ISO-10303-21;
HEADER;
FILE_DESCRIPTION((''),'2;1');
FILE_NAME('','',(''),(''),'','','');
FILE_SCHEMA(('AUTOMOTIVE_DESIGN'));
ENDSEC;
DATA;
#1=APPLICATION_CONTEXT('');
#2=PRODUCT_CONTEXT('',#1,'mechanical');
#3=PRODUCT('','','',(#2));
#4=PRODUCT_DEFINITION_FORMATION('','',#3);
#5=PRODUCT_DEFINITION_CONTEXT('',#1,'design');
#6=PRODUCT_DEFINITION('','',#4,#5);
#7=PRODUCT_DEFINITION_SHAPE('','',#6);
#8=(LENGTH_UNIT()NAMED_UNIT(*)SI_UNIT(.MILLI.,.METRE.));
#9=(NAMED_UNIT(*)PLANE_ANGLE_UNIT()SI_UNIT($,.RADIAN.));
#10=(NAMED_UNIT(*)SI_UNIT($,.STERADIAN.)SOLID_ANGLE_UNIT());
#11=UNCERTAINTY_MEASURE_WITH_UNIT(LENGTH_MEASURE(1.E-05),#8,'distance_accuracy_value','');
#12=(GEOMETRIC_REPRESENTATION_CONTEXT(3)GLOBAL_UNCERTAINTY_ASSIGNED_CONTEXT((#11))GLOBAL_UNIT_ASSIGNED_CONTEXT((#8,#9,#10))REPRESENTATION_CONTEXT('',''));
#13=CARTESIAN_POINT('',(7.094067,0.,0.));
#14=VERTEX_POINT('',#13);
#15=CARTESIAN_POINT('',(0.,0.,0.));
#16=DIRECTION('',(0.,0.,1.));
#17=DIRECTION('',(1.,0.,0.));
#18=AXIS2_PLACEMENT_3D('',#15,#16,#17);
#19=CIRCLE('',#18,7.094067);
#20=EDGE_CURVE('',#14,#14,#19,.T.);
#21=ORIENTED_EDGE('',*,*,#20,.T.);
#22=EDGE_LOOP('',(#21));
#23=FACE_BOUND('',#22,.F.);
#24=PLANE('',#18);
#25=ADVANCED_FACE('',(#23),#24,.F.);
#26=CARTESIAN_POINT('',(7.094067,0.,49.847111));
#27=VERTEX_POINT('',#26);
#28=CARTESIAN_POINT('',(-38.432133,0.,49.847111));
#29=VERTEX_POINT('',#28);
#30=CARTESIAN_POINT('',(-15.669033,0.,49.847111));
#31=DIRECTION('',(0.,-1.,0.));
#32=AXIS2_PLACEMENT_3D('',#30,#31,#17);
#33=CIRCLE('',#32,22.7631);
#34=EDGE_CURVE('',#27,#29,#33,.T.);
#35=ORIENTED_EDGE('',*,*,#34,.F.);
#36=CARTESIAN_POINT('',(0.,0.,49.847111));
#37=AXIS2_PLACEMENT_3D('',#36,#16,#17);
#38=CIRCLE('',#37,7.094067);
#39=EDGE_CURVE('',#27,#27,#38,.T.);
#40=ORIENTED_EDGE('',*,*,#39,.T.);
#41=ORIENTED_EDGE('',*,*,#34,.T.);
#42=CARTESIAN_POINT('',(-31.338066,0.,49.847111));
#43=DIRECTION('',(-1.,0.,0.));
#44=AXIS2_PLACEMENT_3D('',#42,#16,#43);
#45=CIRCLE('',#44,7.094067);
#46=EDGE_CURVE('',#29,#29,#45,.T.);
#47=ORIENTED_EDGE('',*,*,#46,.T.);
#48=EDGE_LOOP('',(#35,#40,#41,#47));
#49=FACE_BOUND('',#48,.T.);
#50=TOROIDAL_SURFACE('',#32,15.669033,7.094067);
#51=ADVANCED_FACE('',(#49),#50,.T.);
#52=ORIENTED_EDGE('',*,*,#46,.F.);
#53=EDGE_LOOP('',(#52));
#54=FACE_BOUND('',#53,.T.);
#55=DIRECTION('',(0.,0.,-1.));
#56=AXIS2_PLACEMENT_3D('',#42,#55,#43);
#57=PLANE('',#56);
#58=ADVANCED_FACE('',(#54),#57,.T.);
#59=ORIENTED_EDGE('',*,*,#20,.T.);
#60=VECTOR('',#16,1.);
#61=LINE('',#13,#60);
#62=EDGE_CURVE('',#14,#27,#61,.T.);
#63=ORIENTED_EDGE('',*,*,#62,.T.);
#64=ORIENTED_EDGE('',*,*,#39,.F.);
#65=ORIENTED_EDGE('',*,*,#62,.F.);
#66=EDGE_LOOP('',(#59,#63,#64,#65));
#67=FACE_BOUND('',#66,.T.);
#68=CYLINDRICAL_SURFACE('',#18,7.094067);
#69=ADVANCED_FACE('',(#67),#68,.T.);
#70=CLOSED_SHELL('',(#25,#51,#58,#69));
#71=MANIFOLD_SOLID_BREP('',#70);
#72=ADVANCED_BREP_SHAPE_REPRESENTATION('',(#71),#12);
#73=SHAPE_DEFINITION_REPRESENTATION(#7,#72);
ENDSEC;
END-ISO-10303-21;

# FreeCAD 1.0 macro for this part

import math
import FreeCAD as App
import Part
import Sketcher
Q = App.Units.Quantity

doc = App.newDocument("Part")
body = doc.addObject("PartDesign::Body", "Body")

sketch1 = body.newObject("Sketcher::SketchObject", "Sketch")
sketch1.AttachmentSupport = (doc.getObject("XY_Plane"), [""])
sketch1.MapMode = "FlatFace"
sketch1.addGeometry(Part.Circle(App.Vector(0, 0, 0), App.Vector(0, 0, 1), 7), False)
sketch1.addConstraint([
    Sketcher.Constraint("Coincident", 0, 3, -1, 1),
    Sketcher.Constraint("Diameter", 0, Q("14.188134 mm")),
])

sketch2 = body.newObject("Sketcher::SketchObject", "Sketch001")
sketch2.AttachmentSupport = (doc.getObject("XZ_Plane"), [""])
sketch2.MapMode = "FlatFace"
sketch2.addGeometry([
    Part.LineSegment(App.Vector(0, 0, 0), App.Vector(0, 50, 0)),
    Part.ArcOfCircle(Part.Circle(App.Vector(-16, 50, 0), App.Vector(0, 0, 1), 16), math.radians(0), math.radians(180)),
], False)
sketch2.addConstraint([
    Sketcher.Constraint("Tangent", 0, 2, 1, 1),
    Sketcher.Constraint("Vertical", 0),
    Sketcher.Constraint("Coincident", 0, 1, -1, 1),
    Sketcher.Constraint("Horizontal", 0, 2, 1, 2),
    Sketcher.Constraint("Radius", 1, Q("15.669033 mm")),
    Sketcher.Constraint("DistanceY", 0, 1, 0, 2, Q("49.847111 mm")),
])
doc.recompute()

additivepipe = body.newObject("PartDesign::AdditivePipe", "AdditivePipe")
additivepipe.Profile = sketch1
additivepipe.Spine = (sketch2, ["Edge1", "Edge2"])

doc.recompute()
